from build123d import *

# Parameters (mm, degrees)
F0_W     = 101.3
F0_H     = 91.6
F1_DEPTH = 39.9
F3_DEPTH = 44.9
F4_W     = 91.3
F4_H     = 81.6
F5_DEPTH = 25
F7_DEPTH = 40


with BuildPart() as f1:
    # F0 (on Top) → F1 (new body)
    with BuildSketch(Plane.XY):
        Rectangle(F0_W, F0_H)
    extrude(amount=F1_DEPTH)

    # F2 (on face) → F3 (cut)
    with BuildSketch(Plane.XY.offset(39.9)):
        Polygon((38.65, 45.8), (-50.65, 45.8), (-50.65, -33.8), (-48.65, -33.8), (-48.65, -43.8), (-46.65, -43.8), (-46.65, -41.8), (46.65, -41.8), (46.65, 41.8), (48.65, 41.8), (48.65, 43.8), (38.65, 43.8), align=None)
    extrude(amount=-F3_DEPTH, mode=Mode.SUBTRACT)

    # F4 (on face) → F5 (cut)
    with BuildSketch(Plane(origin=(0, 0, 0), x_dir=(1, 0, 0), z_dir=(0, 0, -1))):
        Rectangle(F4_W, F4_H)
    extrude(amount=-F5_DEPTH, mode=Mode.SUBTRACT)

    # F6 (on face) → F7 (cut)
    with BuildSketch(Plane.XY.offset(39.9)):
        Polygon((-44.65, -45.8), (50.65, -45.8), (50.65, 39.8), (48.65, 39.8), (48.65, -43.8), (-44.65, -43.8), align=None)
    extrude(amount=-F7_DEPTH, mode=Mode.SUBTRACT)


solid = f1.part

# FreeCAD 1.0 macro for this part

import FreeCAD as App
import Part
import Sketcher


def add_polygon(sketch, points):
    """Adds a closed chain of lines whose ends are joined by coincident constraints."""
    first, n = sketch.GeometryCount, len(points)
    for a, b in zip(points, points[1:] + points[:1]):
        sketch.addGeometry(Part.LineSegment(App.Vector(*a, 0), App.Vector(*b, 0)), False)
    for i in range(n):
        sketch.addConstraint(Sketcher.Constraint("Coincident", first + i, 2, first + (i + 1) % n, 1))

doc = App.newDocument("Part")
body = doc.addObject("PartDesign::Body", "Body")

sketch1 = body.newObject("Sketcher::SketchObject", "Sketch")
sketch1.AttachmentSupport = (doc.getObject("XY_Plane"), [""])
sketch1.MapMode = "FlatFace"
add_polygon(sketch1, [(-50.65, 45.8), (-50.65, -45.8), (50.65, -45.8), (50.65, 45.8)])
sketch1.addConstraint([
    Sketcher.Constraint("Vertical", 0),
    Sketcher.Constraint("Horizontal", 1),
    Sketcher.Constraint("Vertical", 2),
    Sketcher.Constraint("Horizontal", 3),
    Sketcher.Constraint("Symmetric", 0, 2, 2, 2, -1, 1),
    Sketcher.Constraint("DistanceX", 1, 1, 1, 2, 101.3),
    Sketcher.Constraint("DistanceY", 0, 2, 0, 1, 91.6),
])
pad1 = body.newObject("PartDesign::Pad", "Pad")
pad1.Profile = sketch1
pad1.Length = 39.9

sketch2 = body.newObject("Sketcher::SketchObject", "Sketch001")
sketch2.AttachmentSupport = (doc.getObject("XY_Plane"), [""])
sketch2.MapMode = "FlatFace"
sketch2.AttachmentOffset = App.Placement(App.Vector(0, 0, 39.9), App.Rotation())
add_polygon(sketch2, [(38.65, 45.8), (-50.65, 45.8), (-50.65, -33.8), (-48.65, -33.8), (-48.65, -43.8), (-46.65, -43.8), (-46.65, -41.8), (46.65, -41.8), (46.65, 41.8), (48.65, 41.8), (48.65, 43.8), (38.65, 43.8)])
sketch2.addConstraint([
    Sketcher.Constraint("Horizontal", 0),
    Sketcher.Constraint("Vertical", 1),
    Sketcher.Constraint("Horizontal", 2),
    Sketcher.Constraint("Vertical", 3),
    Sketcher.Constraint("Horizontal", 4),
    Sketcher.Constraint("Vertical", 5),
    Sketcher.Constraint("Horizontal", 6),
    Sketcher.Constraint("Vertical", 7),
    Sketcher.Constraint("Horizontal", 8),
    Sketcher.Constraint("Vertical", 9),
    Sketcher.Constraint("Horizontal", 10),
    Sketcher.Constraint("Vertical", 11),
    Sketcher.Constraint("Symmetric", 5, 2, 7, 2, -1, 1),
    Sketcher.Constraint("Symmetric", 3, 2, 9, 2, -1, 1),
    Sketcher.Constraint("Equal", 2, 4),
    Sketcher.Constraint("Equal", 10, 3),
    Sketcher.Constraint("Equal", 8, 5),
    Sketcher.Constraint("Equal", 9, 11),
    Sketcher.Constraint("DistanceX", 2, 1, 2, 2, 2.0),
    Sketcher.Constraint("DistanceX", 10, 2, 10, 1, 10.0),
    Sketcher.Constraint("DistanceX", 0, 2, 0, 1, 89.3),
    Sketcher.Constraint("DistanceY", 1, 2, 1, 1, 79.6),
])
pocket1 = body.newObject("PartDesign::Pocket", "Pocket")
pocket1.Profile = sketch2
pocket1.Length = 44.9

sketch3 = body.newObject("Sketcher::SketchObject", "Sketch002")
sketch3.AttachmentSupport = (doc.getObject("XY_Plane"), [""])
sketch3.MapMode = "FlatFace"
add_polygon(sketch3, [(-45.65, -40.8), (-45.65, 40.8), (45.65, 40.8), (45.65, -40.8)])
sketch3.addConstraint([
    Sketcher.Constraint("Vertical", 0),
    Sketcher.Constraint("Horizontal", 1),
    Sketcher.Constraint("Vertical", 2),
    Sketcher.Constraint("Horizontal", 3),
    Sketcher.Constraint("Symmetric", 0, 2, 2, 2, -1, 1),
    Sketcher.Constraint("DistanceX", 1, 1, 1, 2, 91.3),
    Sketcher.Constraint("DistanceY", 0, 1, 0, 2, 81.6),
])
pocket2 = body.newObject("PartDesign::Pocket", "Pocket001")
pocket2.Profile = sketch3
pocket2.Length = 25
pocket2.Reversed = True

sketch4 = body.newObject("Sketcher::SketchObject", "Sketch003")
sketch4.AttachmentSupport = (doc.getObject("XY_Plane"), [""])
sketch4.MapMode = "FlatFace"
sketch4.AttachmentOffset = App.Placement(App.Vector(0, 0, 39.9), App.Rotation())
add_polygon(sketch4, [(-44.65, -45.8), (50.65, -45.8), (50.65, 39.8), (48.65, 39.8), (48.65, -43.8), (-44.65, -43.8)])
sketch4.addConstraint([
    Sketcher.Constraint("Horizontal", 0),
    Sketcher.Constraint("Vertical", 1),
    Sketcher.Constraint("Horizontal", 2),
    Sketcher.Constraint("Vertical", 3),
    Sketcher.Constraint("Horizontal", 4),
    Sketcher.Constraint("Vertical", 5),
    Sketcher.Constraint("Equal", 2, 5),
    Sketcher.Constraint("DistanceX", 2, 2, 2, 1, 2.0),
    Sketcher.Constraint("DistanceX", 0, 1, 0, 2, 95.3),
    Sketcher.Constraint("DistanceY", 1, 1, 1, 2, 85.6),
    Sketcher.Constraint("DistanceY", 0, 2, -1, 1, 45.8),
    Sketcher.Constraint("DistanceX", -1, 1, 0, 2, 50.65),
])
pocket3 = body.newObject("PartDesign::Pocket", "Pocket002")
pocket3.Profile = sketch4
pocket3.Length = 40

doc.recompute()
